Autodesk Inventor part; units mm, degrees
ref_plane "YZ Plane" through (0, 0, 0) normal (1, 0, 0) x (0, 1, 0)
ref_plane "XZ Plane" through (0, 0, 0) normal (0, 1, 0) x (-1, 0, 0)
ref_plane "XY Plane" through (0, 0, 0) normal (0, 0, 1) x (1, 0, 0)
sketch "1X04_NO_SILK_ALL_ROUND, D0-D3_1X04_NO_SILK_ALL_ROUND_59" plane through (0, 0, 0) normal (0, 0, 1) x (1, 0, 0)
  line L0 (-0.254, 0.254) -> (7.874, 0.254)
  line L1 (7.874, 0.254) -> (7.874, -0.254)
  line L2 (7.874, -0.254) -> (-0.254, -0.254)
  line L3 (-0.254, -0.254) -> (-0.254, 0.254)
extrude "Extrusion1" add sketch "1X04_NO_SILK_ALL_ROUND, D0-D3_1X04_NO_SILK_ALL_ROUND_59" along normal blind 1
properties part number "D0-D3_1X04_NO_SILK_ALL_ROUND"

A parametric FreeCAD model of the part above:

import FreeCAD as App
import Part
import Sketcher

V = App.Vector
Q = App.Units.Quantity

doc = App.newDocument("Part")
params = doc.addObject("Spreadsheet::Sheet", "Params")
for row, (alias, value) in enumerate([
    ("sketch1_width", "0.32 in"),
    ("sketch1_height", "0.02 in"),
    ("pad1_length", "1 mm"),
], start=1):
    params.set(f"A{row}", alias)
    params.set(f"B{row}", "=" + value)
    params.setAlias(f"B{row}", alias)

body = doc.addObject("PartDesign::Body", "Body")

sketch1 = body.newObject("Sketcher::SketchObject", "Sketch")
sketch1.AttachmentSupport = (doc.getObject("XY_Plane"), [""])
sketch1.MapMode = "FlatFace"
sketch1.addGeometry(Part.LineSegment(V(7.874, 0.254, 0), V(-0.254, 0.254, 0)), False)
sketch1.addGeometry(Part.LineSegment(V(-0.254, 0.254, 0), V(-0.254, -0.254, 0)), False)
sketch1.addGeometry(Part.LineSegment(V(-0.254, -0.254, 0), V(7.874, -0.254, 0)), False)
sketch1.addGeometry(Part.LineSegment(V(7.874, -0.254, 0), V(7.874, 0.254, 0)), False)
sketch1.addConstraint(Sketcher.Constraint("Coincident", 0, 2, 1, 1))
sketch1.addConstraint(Sketcher.Constraint("Coincident", 1, 2, 2, 1))
sketch1.addConstraint(Sketcher.Constraint("Coincident", 2, 2, 3, 1))
sketch1.addConstraint(Sketcher.Constraint("Coincident", 3, 2, 0, 1))
sketch1.addConstraint(Sketcher.Constraint("Horizontal", 0))
sketch1.addConstraint(Sketcher.Constraint("Vertical", 1))
sketch1.addConstraint(Sketcher.Constraint("Horizontal", 2))
sketch1.addConstraint(Sketcher.Constraint("Vertical", 3))
sketch1.addConstraint(Sketcher.Constraint("DistanceX", 0, 2, 0, 1, Q("0.32 in")))
sketch1.addConstraint(Sketcher.Constraint("DistanceY", 1, 2, 1, 1, Q("0.02 in")))
sketch1.addConstraint(Sketcher.Constraint("DistanceX", 0, 2, -1, 1, Q("0.01 in")))
sketch1.addConstraint(Sketcher.Constraint("DistanceY", -1, 1, 0, 2, Q("0.01 in")))
sketch1.setExpression("Constraints[8]", "Params.sketch1_width")
sketch1.setExpression("Constraints[9]", "Params.sketch1_height")
pad1 = body.newObject("PartDesign::Pad", "Pad")
pad1.Profile = sketch1
pad1.setExpression("Length", "Params.pad1_length")

doc.recompute()
